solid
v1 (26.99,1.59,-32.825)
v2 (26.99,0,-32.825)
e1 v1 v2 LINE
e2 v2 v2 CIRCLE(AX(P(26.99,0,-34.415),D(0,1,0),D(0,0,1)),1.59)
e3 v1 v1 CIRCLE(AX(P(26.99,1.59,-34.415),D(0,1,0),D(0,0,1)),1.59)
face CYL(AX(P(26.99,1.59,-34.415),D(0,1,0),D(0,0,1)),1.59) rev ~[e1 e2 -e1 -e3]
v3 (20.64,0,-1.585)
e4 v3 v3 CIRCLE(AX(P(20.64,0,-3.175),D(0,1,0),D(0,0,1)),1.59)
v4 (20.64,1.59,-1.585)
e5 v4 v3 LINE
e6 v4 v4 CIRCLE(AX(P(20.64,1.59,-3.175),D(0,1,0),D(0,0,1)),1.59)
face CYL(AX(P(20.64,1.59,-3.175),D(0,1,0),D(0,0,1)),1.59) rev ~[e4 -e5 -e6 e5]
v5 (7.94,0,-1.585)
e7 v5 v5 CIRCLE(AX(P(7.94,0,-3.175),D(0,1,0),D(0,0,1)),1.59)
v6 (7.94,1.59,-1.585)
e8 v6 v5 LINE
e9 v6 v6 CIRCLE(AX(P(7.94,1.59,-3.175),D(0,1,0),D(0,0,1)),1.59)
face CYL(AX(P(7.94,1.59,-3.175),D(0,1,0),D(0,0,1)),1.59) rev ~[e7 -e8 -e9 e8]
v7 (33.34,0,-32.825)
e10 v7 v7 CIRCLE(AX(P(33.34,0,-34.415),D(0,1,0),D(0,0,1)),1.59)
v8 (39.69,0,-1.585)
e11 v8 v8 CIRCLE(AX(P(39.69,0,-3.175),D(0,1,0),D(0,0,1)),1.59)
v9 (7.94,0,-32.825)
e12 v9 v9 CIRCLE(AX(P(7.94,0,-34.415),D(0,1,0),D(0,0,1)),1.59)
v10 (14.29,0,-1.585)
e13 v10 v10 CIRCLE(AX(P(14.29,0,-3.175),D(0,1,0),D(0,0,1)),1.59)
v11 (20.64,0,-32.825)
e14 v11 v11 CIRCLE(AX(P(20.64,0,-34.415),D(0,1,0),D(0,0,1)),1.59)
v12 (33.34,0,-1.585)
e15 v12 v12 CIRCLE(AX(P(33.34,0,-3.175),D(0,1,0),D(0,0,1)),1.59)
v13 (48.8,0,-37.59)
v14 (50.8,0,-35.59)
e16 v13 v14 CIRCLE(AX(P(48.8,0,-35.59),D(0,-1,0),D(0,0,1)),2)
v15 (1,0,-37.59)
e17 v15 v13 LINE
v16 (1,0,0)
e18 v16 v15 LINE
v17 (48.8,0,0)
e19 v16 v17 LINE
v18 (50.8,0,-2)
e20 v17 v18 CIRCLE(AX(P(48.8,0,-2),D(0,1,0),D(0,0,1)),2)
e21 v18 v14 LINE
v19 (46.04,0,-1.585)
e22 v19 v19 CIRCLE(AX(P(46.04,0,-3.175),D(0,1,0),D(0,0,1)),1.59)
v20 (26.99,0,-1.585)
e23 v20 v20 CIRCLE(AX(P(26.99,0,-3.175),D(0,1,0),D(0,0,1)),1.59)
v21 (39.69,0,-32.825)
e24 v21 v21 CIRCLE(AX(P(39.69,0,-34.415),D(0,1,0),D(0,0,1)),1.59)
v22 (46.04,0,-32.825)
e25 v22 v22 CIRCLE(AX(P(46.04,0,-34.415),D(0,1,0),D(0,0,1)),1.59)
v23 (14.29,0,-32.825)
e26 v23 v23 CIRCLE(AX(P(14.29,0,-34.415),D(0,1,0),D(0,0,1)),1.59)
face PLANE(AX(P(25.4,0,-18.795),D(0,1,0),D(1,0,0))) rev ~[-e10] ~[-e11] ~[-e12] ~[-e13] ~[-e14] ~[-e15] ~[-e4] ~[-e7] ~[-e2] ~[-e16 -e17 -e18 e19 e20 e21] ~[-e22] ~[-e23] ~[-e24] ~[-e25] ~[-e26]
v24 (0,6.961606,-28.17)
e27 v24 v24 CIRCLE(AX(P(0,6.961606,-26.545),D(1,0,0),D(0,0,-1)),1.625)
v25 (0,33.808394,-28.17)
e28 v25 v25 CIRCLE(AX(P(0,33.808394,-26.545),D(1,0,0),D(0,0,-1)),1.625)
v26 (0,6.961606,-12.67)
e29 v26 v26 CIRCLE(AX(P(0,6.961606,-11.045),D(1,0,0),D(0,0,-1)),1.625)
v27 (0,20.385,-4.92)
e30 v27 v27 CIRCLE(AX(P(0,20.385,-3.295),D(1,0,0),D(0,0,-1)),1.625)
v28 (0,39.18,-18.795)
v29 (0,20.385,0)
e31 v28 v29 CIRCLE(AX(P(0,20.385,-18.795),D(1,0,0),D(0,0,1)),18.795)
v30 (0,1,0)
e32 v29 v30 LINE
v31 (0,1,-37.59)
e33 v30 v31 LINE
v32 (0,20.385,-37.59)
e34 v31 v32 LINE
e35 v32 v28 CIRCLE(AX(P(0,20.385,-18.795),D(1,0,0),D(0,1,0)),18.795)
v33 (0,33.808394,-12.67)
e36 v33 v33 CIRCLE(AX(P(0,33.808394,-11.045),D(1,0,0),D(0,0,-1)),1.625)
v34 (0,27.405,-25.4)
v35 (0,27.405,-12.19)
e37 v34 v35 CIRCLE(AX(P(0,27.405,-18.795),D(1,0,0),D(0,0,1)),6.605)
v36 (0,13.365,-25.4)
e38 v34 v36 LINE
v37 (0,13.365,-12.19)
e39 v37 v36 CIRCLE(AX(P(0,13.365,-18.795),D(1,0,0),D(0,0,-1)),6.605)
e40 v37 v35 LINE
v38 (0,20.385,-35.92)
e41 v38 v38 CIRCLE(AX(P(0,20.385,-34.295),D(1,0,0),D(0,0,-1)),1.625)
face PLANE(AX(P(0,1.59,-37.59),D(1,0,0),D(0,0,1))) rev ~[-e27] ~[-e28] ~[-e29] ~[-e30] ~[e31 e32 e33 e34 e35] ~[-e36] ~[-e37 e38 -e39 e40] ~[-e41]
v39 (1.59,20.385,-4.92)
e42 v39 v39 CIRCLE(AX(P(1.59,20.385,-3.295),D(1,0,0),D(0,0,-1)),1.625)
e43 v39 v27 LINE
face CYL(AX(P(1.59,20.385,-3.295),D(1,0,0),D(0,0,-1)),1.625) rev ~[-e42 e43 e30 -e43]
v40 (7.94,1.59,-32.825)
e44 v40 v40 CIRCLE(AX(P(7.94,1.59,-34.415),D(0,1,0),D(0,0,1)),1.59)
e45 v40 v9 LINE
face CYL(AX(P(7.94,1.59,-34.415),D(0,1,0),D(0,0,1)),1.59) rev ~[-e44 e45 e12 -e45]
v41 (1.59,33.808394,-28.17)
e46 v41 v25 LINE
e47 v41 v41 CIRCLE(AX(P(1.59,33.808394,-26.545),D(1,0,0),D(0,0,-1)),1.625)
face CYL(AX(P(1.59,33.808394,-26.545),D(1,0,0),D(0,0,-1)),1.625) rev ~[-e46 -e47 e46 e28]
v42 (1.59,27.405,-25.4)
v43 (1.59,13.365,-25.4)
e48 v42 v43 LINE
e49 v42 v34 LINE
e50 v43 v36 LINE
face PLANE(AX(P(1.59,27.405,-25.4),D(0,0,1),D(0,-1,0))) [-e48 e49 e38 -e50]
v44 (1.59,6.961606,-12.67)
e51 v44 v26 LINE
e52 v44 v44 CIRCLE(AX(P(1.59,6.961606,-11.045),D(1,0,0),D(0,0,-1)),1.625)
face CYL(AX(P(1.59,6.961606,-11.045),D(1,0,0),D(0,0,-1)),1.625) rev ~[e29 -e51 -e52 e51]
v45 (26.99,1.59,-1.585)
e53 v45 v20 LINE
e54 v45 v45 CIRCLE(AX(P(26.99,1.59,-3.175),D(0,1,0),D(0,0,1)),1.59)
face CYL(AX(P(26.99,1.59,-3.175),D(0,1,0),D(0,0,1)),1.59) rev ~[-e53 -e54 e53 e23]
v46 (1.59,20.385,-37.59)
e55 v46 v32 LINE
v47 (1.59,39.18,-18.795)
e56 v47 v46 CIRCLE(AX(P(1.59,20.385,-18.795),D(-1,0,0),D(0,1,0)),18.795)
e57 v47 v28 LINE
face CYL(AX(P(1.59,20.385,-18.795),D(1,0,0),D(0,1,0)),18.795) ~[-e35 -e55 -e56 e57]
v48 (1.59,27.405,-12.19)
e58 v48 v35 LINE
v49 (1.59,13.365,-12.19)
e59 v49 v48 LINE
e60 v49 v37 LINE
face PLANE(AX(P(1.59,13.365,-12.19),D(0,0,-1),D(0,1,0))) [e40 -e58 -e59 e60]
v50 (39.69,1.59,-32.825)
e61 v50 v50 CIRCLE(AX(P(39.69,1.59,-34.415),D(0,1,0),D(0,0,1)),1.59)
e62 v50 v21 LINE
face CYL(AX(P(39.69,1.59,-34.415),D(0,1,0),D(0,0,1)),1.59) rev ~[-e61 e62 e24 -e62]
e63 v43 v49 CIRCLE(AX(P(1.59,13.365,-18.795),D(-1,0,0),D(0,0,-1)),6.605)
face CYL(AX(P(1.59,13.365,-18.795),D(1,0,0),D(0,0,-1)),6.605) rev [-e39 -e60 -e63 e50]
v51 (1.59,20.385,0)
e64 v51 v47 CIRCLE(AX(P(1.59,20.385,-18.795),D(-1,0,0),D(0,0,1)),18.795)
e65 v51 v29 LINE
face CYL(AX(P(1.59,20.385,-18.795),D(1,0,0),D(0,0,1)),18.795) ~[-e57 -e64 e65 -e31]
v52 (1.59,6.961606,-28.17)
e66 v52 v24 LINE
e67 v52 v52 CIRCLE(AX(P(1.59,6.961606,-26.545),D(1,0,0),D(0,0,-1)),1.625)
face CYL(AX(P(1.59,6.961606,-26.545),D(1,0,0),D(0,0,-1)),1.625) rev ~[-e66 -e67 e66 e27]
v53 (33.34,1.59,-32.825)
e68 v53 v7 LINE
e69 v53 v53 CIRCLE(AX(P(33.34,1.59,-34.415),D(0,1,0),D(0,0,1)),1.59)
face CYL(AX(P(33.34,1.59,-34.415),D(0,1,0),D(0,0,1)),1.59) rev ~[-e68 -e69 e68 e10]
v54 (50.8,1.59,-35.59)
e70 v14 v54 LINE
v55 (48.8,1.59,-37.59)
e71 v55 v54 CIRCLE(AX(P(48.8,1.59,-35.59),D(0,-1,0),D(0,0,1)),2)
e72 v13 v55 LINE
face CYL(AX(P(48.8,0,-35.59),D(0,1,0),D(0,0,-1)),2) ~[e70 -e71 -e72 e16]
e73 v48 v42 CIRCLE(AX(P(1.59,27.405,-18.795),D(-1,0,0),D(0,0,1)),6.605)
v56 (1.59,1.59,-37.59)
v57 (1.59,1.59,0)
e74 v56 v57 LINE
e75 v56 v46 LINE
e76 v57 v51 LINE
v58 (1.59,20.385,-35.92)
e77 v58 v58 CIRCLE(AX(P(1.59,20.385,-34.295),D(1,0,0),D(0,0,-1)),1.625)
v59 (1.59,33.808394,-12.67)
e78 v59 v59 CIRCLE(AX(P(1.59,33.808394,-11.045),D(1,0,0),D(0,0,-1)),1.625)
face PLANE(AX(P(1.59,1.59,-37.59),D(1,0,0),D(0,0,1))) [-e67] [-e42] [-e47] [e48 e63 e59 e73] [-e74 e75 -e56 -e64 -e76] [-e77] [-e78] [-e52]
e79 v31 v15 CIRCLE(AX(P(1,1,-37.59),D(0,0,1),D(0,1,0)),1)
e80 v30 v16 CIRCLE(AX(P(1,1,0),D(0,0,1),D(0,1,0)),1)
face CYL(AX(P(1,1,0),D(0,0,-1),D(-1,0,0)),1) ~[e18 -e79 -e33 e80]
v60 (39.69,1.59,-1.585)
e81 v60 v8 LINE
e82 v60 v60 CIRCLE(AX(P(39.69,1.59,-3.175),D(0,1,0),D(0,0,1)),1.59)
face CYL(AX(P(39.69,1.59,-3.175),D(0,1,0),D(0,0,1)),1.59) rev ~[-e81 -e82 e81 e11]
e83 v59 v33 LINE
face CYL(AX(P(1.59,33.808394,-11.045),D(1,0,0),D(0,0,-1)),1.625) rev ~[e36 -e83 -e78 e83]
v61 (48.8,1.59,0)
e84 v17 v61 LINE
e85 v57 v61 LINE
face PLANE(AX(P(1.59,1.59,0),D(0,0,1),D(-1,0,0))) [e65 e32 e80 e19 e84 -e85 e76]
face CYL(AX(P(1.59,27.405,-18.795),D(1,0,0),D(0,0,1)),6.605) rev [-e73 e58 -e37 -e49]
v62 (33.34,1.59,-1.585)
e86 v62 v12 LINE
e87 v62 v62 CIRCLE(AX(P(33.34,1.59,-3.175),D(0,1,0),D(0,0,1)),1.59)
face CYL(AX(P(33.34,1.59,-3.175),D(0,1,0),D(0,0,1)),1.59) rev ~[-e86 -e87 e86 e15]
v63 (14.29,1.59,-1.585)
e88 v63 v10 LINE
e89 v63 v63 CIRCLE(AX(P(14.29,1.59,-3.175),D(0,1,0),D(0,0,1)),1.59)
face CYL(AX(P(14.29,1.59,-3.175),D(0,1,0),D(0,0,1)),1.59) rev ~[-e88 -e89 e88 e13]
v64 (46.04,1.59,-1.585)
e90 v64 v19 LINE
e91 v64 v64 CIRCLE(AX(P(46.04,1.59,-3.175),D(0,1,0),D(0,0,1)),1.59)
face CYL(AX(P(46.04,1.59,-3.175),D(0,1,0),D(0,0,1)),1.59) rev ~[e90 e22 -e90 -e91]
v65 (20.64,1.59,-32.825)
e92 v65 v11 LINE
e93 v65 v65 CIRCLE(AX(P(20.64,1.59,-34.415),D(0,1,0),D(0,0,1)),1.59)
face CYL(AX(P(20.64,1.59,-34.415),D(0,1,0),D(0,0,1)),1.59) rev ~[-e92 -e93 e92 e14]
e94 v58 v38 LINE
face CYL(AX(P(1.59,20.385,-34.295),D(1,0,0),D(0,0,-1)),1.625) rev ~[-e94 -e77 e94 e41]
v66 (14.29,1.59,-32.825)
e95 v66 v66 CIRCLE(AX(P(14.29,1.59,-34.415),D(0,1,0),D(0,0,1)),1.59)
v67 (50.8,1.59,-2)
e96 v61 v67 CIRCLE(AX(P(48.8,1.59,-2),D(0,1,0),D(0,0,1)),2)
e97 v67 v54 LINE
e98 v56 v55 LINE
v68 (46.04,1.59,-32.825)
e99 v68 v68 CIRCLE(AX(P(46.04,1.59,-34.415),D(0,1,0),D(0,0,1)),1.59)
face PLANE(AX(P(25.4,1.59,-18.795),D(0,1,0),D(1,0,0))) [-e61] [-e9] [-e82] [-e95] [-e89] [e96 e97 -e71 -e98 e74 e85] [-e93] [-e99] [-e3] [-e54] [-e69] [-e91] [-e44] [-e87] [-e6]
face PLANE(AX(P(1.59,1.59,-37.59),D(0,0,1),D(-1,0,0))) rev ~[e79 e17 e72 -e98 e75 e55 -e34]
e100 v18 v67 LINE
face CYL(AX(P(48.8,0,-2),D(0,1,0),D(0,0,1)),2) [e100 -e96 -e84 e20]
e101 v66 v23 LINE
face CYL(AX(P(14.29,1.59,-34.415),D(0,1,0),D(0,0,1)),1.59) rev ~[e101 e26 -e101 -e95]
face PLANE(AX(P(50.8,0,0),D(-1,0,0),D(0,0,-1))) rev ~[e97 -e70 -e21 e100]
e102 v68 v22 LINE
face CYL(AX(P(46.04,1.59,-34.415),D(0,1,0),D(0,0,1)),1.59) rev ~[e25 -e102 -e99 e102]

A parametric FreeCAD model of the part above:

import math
import FreeCAD as App
import Part
import Sketcher

V = App.Vector
Q = App.Units.Quantity


def edges_at(feature, points):
    """Names of the edges that pass closest to the given points."""
    edges = feature.Shape.Edges
    near = lambda p: min(range(len(edges)), key=lambda i: edges[i].distToShape(Part.Vertex(*p))[0])
    return sorted({f"Edge{near(p) + 1}" for p in points})

doc = App.newDocument("Part")
body = doc.addObject("PartDesign::Body", "Body")

# Sketch on XZ plane
sketch1 = doc.addObject("Sketcher::SketchObject", "Sketch")
body.addObject(sketch1)
sketch1.AttachmentSupport = (doc.XZ_Plane, [""])
sketch1.MapMode = "FlatFace"
sketch1.addGeometry(Part.LineSegment(V(0, -38, 0), V(0, 0, 0)), False)
sketch1.addGeometry(Part.LineSegment(V(0, 0, 0), V(51, 0, 0)), False)
sketch1.addGeometry(Part.LineSegment(V(51, 0, 0), V(51, -38, 0)), False)
sketch1.addGeometry(Part.LineSegment(V(51, -38, 0), V(0, -38, 0)), False)
sketch1.addConstraint(Sketcher.Constraint("Coincident", 0, 2, 1, 1))
sketch1.addConstraint(Sketcher.Constraint("Coincident", 1, 2, 2, 1))
sketch1.addConstraint(Sketcher.Constraint("Coincident", 2, 2, 3, 1))
sketch1.addConstraint(Sketcher.Constraint("Coincident", 3, 2, 0, 1))
sketch1.addConstraint(Sketcher.Constraint("Vertical", 0))
sketch1.addConstraint(Sketcher.Constraint("Horizontal", 1))
sketch1.addConstraint(Sketcher.Constraint("Vertical", 2))
sketch1.addConstraint(Sketcher.Constraint("Horizontal", 3))
sketch1.addConstraint(Sketcher.Constraint("Coincident", 0, 2, -1, 1))
sketch1.addConstraint(Sketcher.Constraint("DistanceX", 1, 1, 1, 2, Q("50.8 mm")))
sketch1.addConstraint(Sketcher.Constraint("DistanceY", 0, 1, 0, 2, Q("37.59 mm")))
pad1 = doc.addObject("PartDesign::Pad", "Pad")
body.addObject(pad1)
pad1.Profile = sketch1
pad1.Length = 1.59
pad1.Reversed = True

# Sketch on XZ plane
sketch2 = doc.addObject("Sketcher::SketchObject", "Sketch001")
body.addObject(sketch2)
sketch2.AttachmentSupport = (doc.XZ_Plane, [""])
sketch2.MapMode = "FlatFace"
sketch2.AttachmentOffset = App.Placement(V(0, 0, -1.59), App.Rotation())
sketch2.addGeometry(Part.LineSegment(V(1.6, 0, 0), V(1.6, -37.6, 0)), False)
sketch2.addGeometry(Part.LineSegment(V(1.6, -37.6, 0), V(0, -37.6, 0)), False)
sketch2.addGeometry(Part.LineSegment(V(0, -37.6, 0), V(0, 0, 0)), False)
sketch2.addGeometry(Part.LineSegment(V(0, 0, 0), V(1.6, 0, 0)), False)
sketch2.addConstraint(Sketcher.Constraint("Coincident", 0, 2, 1, 1))
sketch2.addConstraint(Sketcher.Constraint("Coincident", 1, 2, 2, 1))
sketch2.addConstraint(Sketcher.Constraint("Coincident", 2, 2, 3, 1))
sketch2.addConstraint(Sketcher.Constraint("Coincident", 3, 2, 0, 1))
sketch2.addConstraint(Sketcher.Constraint("Vertical", 0))
sketch2.addConstraint(Sketcher.Constraint("Horizontal", 1))
sketch2.addConstraint(Sketcher.Constraint("Vertical", 2))
sketch2.addConstraint(Sketcher.Constraint("Horizontal", 3))
sketch2.addConstraint(Sketcher.Constraint("Coincident", 2, 2, -1, 1))
sketch2.addConstraint(Sketcher.Constraint("DistanceX", 1, 2, 1, 1, Q("1.59 mm")))
sketch2.addConstraint(Sketcher.Constraint("DistanceY", 0, 2, 0, 1, Q("37.59 mm")))
pad2 = doc.addObject("PartDesign::Pad", "Pad001")
body.addObject(pad2)
pad2.Profile = sketch2
pad2.Length = 37.59
pad2.Reversed = True
doc.recompute()

fillet = doc.addObject("PartDesign::Fillet", "Fillet")
body.addObject(fillet)
fillet.Base = (pad2, edges_at(pad2, [(0, 0, -18.795)]))
fillet.Radius = 1

# Sketch on XZ plane
sketch3 = doc.addObject("Sketcher::SketchObject", "Sketch002")
body.addObject(sketch3)
sketch3.AttachmentSupport = (doc.XZ_Plane, [""])
sketch3.MapMode = "FlatFace"
sketch3.AttachmentOffset = App.Placement(V(0, 0, -1.59), App.Rotation())
sketch3.addGeometry(Part.Circle(V(7.9, -34.4, 0), V(0, 0, 1), 1.6), False)
sketch3.addGeometry(Part.Circle(V(14.3, -34.4, 0), V(0, 0, 1), 1.6), False)
sketch3.addGeometry(Part.Circle(V(20.6, -34.4, 0), V(0, 0, 1), 1.6), False)
sketch3.addGeometry(Part.Circle(V(27, -34.4, 0), V(0, 0, 1), 1.6), False)
sketch3.addGeometry(Part.Circle(V(33.3, -34.4, 0), V(0, 0, 1), 1.6), False)
sketch3.addGeometry(Part.Circle(V(39.7, -34.4, 0), V(0, 0, 1), 1.6), False)
sketch3.addGeometry(Part.Circle(V(46, -34.4, 0), V(0, 0, 1), 1.6), False)
sketch3.addGeometry(Part.Circle(V(46, -3.2, 0), V(0, 0, 1), 1.6), False)
sketch3.addGeometry(Part.Circle(V(39.7, -3.2, 0), V(0, 0, 1), 1.6), False)
sketch3.addGeometry(Part.Circle(V(33.3, -3.2, 0), V(0, 0, 1), 1.6), False)
sketch3.addGeometry(Part.Circle(V(27, -3.2, 0), V(0, 0, 1), 1.6), False)
sketch3.addGeometry(Part.Circle(V(20.6, -3.2, 0), V(0, 0, 1), 1.6), False)
sketch3.addGeometry(Part.Circle(V(14.3, -3.2, 0), V(0, 0, 1), 1.6), False)
sketch3.addGeometry(Part.Circle(V(7.9, -3.2, 0), V(0, 0, 1), 1.6), False)
sketch3.addConstraint(Sketcher.Constraint("Equal", 0, 1))
sketch3.addConstraint(Sketcher.Constraint("Equal", 1, 2))
sketch3.addConstraint(Sketcher.Constraint("Equal", 2, 3))
sketch3.addConstraint(Sketcher.Constraint("Equal", 3, 4))
sketch3.addConstraint(Sketcher.Constraint("Equal", 4, 5))
sketch3.addConstraint(Sketcher.Constraint("Equal", 5, 6))
sketch3.addConstraint(Sketcher.Constraint("Equal", 6, 7))
sketch3.addConstraint(Sketcher.Constraint("Equal", 7, 8))
sketch3.addConstraint(Sketcher.Constraint("Equal", 8, 9))
sketch3.addConstraint(Sketcher.Constraint("Equal", 9, 10))
sketch3.addConstraint(Sketcher.Constraint("Equal", 10, 11))
sketch3.addConstraint(Sketcher.Constraint("Equal", 11, 12))
sketch3.addConstraint(Sketcher.Constraint("Equal", 12, 13))
sketch3.addConstraint(Sketcher.Constraint("Horizontal", 0, 3, 1, 3))
sketch3.addConstraint(Sketcher.Constraint("Horizontal", 1, 3, 2, 3))
sketch3.addConstraint(Sketcher.Constraint("Horizontal", 2, 3, 3, 3))
sketch3.addConstraint(Sketcher.Constraint("Horizontal", 3, 3, 4, 3))
sketch3.addConstraint(Sketcher.Constraint("Horizontal", 4, 3, 5, 3))
sketch3.addConstraint(Sketcher.Constraint("Horizontal", 5, 3, 6, 3))
sketch3.addConstraint(Sketcher.Constraint("Horizontal", 7, 3, 8, 3))
sketch3.addConstraint(Sketcher.Constraint("Horizontal", 8, 3, 9, 3))
sketch3.addConstraint(Sketcher.Constraint("Horizontal", 9, 3, 10, 3))
sketch3.addConstraint(Sketcher.Constraint("Horizontal", 10, 3, 11, 3))
sketch3.addConstraint(Sketcher.Constraint("Horizontal", 11, 3, 12, 3))
sketch3.addConstraint(Sketcher.Constraint("Horizontal", 12, 3, 13, 3))
sketch3.addConstraint(Sketcher.Constraint("Vertical", 6, 3, 7, 3))
sketch3.addConstraint(Sketcher.Constraint("Vertical", 5, 3, 8, 3))
sketch3.addConstraint(Sketcher.Constraint("Vertical", 4, 3, 9, 3))
sketch3.addConstraint(Sketcher.Constraint("Vertical", 3, 3, 10, 3))
sketch3.addConstraint(Sketcher.Constraint("Vertical", 2, 3, 11, 3))
sketch3.addConstraint(Sketcher.Constraint("Vertical", 1, 3, 12, 3))
sketch3.addConstraint(Sketcher.Constraint("Vertical", 0, 3, 13, 3))
sketch3.addConstraint(Sketcher.Constraint("Diameter", 0, Q("3.18 mm")))
sketch3.addConstraint(Sketcher.Constraint("DistanceX", 0, 3, 2, 3, Q("12.7 mm")))
sketch3.addConstraint(Sketcher.Constraint("DistanceX", 1, 3, 3, 3, Q("12.7 mm")))
sketch3.addConstraint(Sketcher.Constraint("DistanceX", 2, 3, 4, 3, Q("12.7 mm")))
sketch3.addConstraint(Sketcher.Constraint("DistanceX", 3, 3, 5, 3, Q("12.7 mm")))
sketch3.addConstraint(Sketcher.Constraint("DistanceX", 4, 3, 6, 3, Q("12.7 mm")))
sketch3.addConstraint(Sketcher.Constraint("DistanceX", -1, 1, 0, 3, Q("7.94 mm")))
sketch3.addConstraint(Sketcher.Constraint("DistanceX", -1, 1, 1, 3, Q("14.29 mm")))
sketch3.addConstraint(Sketcher.Constraint("DistanceY", 6, 3, 7, 3, Q("31.24 mm")))
sketch3.addConstraint(Sketcher.Constraint("DistanceY", 0, 3, -1, 1, Q("34.415 mm")))
pocket1 = doc.addObject("PartDesign::Pocket", "Pocket")
body.addObject(pocket1)
pocket1.Profile = sketch3
pocket1.Type = "ThroughAll"
pocket1.Reversed = True
doc.recompute()

fillet2 = doc.addObject("PartDesign::Fillet", "Fillet001")
body.addObject(fillet2)
fillet2.Base = (pocket1, edges_at(pocket1, [(50.8, 0.795, 0), (50.8, 0.795, -37.59)]))
fillet2.Radius = 2

# Sketch on YZ plane
sketch4 = doc.addObject("Sketcher::SketchObject", "Sketch003")
body.addObject(sketch4)
sketch4.AttachmentSupport = (doc.YZ_Plane, [""])
sketch4.MapMode = "FlatFace"
sketch4.AttachmentOffset = App.Placement(V(0, 0, 1.59), App.Rotation())
sketch4.addGeometry(Part.LineSegment(V(39, 0, 0), V(20, 0, 0)), False)
sketch4.addGeometry(Part.ArcOfCircle(Part.Circle(V(20, -19, 0), V(0, 0, 1), 19), math.radians(0), math.radians(90)), False)
sketch4.addGeometry(Part.LineSegment(V(39, -19, 0), V(39, 0, 0)), False)
sketch4.addGeometry(Part.LineSegment(V(39, -38, 0), V(39, -19, 0)), False)
sketch4.addGeometry(Part.ArcOfCircle(Part.Circle(V(20, -19, 0), V(0, 0, 1), 19), math.radians(-90), math.radians(0)), False)
sketch4.addGeometry(Part.LineSegment(V(20, -38, 0), V(39, -38, 0)), False)
sketch4.addConstraint(Sketcher.Constraint("Tangent", 0, 2, 1, 2))
sketch4.addConstraint(Sketcher.Constraint("Tangent", 1, 1, 2, 1))
sketch4.addConstraint(Sketcher.Constraint("Coincident", 2, 2, 0, 1))
sketch4.addConstraint(Sketcher.Constraint("Tangent", 3, 2, 4, 2))
sketch4.addConstraint(Sketcher.Constraint("Tangent", 4, 1, 5, 1))
sketch4.addConstraint(Sketcher.Constraint("Coincident", 5, 2, 3, 1))
sketch4.addConstraint(Sketcher.Constraint("Horizontal", 0))
sketch4.addConstraint(Sketcher.Constraint("Vertical", 2))
sketch4.addConstraint(Sketcher.Constraint("Vertical", 3))
sketch4.addConstraint(Sketcher.Constraint("Horizontal", 5))
sketch4.addConstraint(Sketcher.Constraint("Coincident", 4, 3, 1, 3))
sketch4.addConstraint(Sketcher.Constraint("Equal", 1, 4))
sketch4.addConstraint(Sketcher.Constraint("PointOnObject", 0, 2, -1))
sketch4.addConstraint(Sketcher.Constraint("Radius", 1, Q("18.795 mm")))
sketch4.addConstraint(Sketcher.Constraint("DistanceX", -1, 1, 1, 1, Q("39.18 mm")))
pocket2 = doc.addObject("PartDesign::Pocket", "Pocket001")
body.addObject(pocket2)
pocket2.Profile = sketch4
pocket2.Type = "ThroughAll"

# Sketch on YZ plane
sketch5 = doc.addObject("Sketcher::SketchObject", "Sketch004")
body.addObject(sketch5)
sketch5.AttachmentSupport = (doc.YZ_Plane, [""])
sketch5.MapMode = "FlatFace"
sketch5.AttachmentOffset = App.Placement(V(0, 0, 1.59), App.Rotation())
sketch5.addGeometry(Part.Circle(V(20.4, -34.3, 0), V(0, 0, 1), 1.6), False)
sketch5.addGeometry(Part.Circle(V(7, -26.5, 0), V(0, 0, 1), 1.6), False)
sketch5.addGeometry(Part.Circle(V(7, -11, 0), V(0, 0, 1), 1.6), False)
sketch5.addGeometry(Part.Circle(V(20.4, -3.3, 0), V(0, 0, 1), 1.6), False)
sketch5.addGeometry(Part.Circle(V(33.8, -11, 0), V(0, 0, 1), 1.6), False)
sketch5.addGeometry(Part.Circle(V(33.8, -26.5, 0), V(0, 0, 1), 1.6), False)
sketch5.addGeometry(Part.LineSegment(V(27.4, -12.2, 0), V(13.4, -12.2, 0)), False)
sketch5.addGeometry(Part.ArcOfCircle(Part.Circle(V(13.4, -18.8, 0), V(0, 0, 1), 6.6), math.radians(90), math.radians(270)), False)
sketch5.addGeometry(Part.LineSegment(V(13.4, -25.4, 0), V(27.4, -25.4, 0)), False)
sketch5.addGeometry(Part.ArcOfCircle(Part.Circle(V(27.4, -18.8, 0), V(0, 0, 1), 6.6), math.radians(-90), math.radians(90)), False)
sketch5.addConstraint(Sketcher.Constraint("Tangent", 6, 2, 7, 1))
sketch5.addConstraint(Sketcher.Constraint("Tangent", 7, 2, 8, 1))
sketch5.addConstraint(Sketcher.Constraint("Tangent", 8, 2, 9, 1))
sketch5.addConstraint(Sketcher.Constraint("Tangent", 9, 2, 6, 1))
sketch5.addConstraint(Sketcher.Constraint("Horizontal", 6))
sketch5.addConstraint(Sketcher.Constraint("Horizontal", 8))
sketch5.addConstraint(Sketcher.Constraint("Equal", 0, 1))
sketch5.addConstraint(Sketcher.Constraint("Equal", 1, 2))
sketch5.addConstraint(Sketcher.Constraint("Equal", 2, 3))
sketch5.addConstraint(Sketcher.Constraint("Equal", 3, 4))
sketch5.addConstraint(Sketcher.Constraint("Equal", 4, 5))
sketch5.addConstraint(Sketcher.Constraint("Horizontal", 2, 3, 4, 3))
sketch5.addConstraint(Sketcher.Constraint("Horizontal", 1, 3, 5, 3))
sketch5.addConstraint(Sketcher.Constraint("Vertical", 1, 3, 2, 3))
sketch5.addConstraint(Sketcher.Constraint("Vertical", 0, 3, 3, 3))
sketch5.addConstraint(Sketcher.Constraint("Vertical", 4, 3, 5, 3))
sketch5.addConstraint(Sketcher.Constraint("Diameter", 0, Q("3.25 mm")))
sketch5.addConstraint(Sketcher.Constraint("Radius", 7, Q("6.605 mm")))
sketch5.addConstraint(Sketcher.Constraint("DistanceY", 0, 3, 3, 3, Q("31 mm")))
sketch5.addConstraint(Sketcher.Constraint("DistanceX", 6, 2, 6, 1, Q("14.04 mm")))
sketch5.addConstraint(Sketcher.Constraint("DistanceY", 7, 2, -1, 1, Q("25.4 mm")))
sketch5.addConstraint(Sketcher.Constraint("DistanceY", 1, 3, 2, 3, Q("15.5 mm")))
sketch5.addConstraint(Sketcher.Constraint("DistanceY", 0, 3, 7, 3, Q("15.5 mm")))
sketch5.addConstraint(Sketcher.Constraint("DistanceY", 0, 3, 1, 3, Q("7.75 mm")))
sketch5.addConstraint(Sketcher.Constraint("DistanceX", 7, 3, 0, 3, Q("7.02 mm")))
sketch5.addConstraint(Sketcher.Constraint("DistanceX", -1, 1, 0, 3, Q("20.385 mm")))
sketch5.addConstraint(Sketcher.Constraint("DistanceX", -1, 1, 1, 3, Q("6.961606 mm")))
sketch5.addConstraint(Sketcher.Constraint("DistanceX", -1, 1, 4, 3, Q("33.808394 mm")))
pocket3 = doc.addObject("PartDesign::Pocket", "Pocket002")
body.addObject(pocket3)
pocket3.Profile = sketch5
pocket3.Type = "ThroughAll"

doc.recompute()
